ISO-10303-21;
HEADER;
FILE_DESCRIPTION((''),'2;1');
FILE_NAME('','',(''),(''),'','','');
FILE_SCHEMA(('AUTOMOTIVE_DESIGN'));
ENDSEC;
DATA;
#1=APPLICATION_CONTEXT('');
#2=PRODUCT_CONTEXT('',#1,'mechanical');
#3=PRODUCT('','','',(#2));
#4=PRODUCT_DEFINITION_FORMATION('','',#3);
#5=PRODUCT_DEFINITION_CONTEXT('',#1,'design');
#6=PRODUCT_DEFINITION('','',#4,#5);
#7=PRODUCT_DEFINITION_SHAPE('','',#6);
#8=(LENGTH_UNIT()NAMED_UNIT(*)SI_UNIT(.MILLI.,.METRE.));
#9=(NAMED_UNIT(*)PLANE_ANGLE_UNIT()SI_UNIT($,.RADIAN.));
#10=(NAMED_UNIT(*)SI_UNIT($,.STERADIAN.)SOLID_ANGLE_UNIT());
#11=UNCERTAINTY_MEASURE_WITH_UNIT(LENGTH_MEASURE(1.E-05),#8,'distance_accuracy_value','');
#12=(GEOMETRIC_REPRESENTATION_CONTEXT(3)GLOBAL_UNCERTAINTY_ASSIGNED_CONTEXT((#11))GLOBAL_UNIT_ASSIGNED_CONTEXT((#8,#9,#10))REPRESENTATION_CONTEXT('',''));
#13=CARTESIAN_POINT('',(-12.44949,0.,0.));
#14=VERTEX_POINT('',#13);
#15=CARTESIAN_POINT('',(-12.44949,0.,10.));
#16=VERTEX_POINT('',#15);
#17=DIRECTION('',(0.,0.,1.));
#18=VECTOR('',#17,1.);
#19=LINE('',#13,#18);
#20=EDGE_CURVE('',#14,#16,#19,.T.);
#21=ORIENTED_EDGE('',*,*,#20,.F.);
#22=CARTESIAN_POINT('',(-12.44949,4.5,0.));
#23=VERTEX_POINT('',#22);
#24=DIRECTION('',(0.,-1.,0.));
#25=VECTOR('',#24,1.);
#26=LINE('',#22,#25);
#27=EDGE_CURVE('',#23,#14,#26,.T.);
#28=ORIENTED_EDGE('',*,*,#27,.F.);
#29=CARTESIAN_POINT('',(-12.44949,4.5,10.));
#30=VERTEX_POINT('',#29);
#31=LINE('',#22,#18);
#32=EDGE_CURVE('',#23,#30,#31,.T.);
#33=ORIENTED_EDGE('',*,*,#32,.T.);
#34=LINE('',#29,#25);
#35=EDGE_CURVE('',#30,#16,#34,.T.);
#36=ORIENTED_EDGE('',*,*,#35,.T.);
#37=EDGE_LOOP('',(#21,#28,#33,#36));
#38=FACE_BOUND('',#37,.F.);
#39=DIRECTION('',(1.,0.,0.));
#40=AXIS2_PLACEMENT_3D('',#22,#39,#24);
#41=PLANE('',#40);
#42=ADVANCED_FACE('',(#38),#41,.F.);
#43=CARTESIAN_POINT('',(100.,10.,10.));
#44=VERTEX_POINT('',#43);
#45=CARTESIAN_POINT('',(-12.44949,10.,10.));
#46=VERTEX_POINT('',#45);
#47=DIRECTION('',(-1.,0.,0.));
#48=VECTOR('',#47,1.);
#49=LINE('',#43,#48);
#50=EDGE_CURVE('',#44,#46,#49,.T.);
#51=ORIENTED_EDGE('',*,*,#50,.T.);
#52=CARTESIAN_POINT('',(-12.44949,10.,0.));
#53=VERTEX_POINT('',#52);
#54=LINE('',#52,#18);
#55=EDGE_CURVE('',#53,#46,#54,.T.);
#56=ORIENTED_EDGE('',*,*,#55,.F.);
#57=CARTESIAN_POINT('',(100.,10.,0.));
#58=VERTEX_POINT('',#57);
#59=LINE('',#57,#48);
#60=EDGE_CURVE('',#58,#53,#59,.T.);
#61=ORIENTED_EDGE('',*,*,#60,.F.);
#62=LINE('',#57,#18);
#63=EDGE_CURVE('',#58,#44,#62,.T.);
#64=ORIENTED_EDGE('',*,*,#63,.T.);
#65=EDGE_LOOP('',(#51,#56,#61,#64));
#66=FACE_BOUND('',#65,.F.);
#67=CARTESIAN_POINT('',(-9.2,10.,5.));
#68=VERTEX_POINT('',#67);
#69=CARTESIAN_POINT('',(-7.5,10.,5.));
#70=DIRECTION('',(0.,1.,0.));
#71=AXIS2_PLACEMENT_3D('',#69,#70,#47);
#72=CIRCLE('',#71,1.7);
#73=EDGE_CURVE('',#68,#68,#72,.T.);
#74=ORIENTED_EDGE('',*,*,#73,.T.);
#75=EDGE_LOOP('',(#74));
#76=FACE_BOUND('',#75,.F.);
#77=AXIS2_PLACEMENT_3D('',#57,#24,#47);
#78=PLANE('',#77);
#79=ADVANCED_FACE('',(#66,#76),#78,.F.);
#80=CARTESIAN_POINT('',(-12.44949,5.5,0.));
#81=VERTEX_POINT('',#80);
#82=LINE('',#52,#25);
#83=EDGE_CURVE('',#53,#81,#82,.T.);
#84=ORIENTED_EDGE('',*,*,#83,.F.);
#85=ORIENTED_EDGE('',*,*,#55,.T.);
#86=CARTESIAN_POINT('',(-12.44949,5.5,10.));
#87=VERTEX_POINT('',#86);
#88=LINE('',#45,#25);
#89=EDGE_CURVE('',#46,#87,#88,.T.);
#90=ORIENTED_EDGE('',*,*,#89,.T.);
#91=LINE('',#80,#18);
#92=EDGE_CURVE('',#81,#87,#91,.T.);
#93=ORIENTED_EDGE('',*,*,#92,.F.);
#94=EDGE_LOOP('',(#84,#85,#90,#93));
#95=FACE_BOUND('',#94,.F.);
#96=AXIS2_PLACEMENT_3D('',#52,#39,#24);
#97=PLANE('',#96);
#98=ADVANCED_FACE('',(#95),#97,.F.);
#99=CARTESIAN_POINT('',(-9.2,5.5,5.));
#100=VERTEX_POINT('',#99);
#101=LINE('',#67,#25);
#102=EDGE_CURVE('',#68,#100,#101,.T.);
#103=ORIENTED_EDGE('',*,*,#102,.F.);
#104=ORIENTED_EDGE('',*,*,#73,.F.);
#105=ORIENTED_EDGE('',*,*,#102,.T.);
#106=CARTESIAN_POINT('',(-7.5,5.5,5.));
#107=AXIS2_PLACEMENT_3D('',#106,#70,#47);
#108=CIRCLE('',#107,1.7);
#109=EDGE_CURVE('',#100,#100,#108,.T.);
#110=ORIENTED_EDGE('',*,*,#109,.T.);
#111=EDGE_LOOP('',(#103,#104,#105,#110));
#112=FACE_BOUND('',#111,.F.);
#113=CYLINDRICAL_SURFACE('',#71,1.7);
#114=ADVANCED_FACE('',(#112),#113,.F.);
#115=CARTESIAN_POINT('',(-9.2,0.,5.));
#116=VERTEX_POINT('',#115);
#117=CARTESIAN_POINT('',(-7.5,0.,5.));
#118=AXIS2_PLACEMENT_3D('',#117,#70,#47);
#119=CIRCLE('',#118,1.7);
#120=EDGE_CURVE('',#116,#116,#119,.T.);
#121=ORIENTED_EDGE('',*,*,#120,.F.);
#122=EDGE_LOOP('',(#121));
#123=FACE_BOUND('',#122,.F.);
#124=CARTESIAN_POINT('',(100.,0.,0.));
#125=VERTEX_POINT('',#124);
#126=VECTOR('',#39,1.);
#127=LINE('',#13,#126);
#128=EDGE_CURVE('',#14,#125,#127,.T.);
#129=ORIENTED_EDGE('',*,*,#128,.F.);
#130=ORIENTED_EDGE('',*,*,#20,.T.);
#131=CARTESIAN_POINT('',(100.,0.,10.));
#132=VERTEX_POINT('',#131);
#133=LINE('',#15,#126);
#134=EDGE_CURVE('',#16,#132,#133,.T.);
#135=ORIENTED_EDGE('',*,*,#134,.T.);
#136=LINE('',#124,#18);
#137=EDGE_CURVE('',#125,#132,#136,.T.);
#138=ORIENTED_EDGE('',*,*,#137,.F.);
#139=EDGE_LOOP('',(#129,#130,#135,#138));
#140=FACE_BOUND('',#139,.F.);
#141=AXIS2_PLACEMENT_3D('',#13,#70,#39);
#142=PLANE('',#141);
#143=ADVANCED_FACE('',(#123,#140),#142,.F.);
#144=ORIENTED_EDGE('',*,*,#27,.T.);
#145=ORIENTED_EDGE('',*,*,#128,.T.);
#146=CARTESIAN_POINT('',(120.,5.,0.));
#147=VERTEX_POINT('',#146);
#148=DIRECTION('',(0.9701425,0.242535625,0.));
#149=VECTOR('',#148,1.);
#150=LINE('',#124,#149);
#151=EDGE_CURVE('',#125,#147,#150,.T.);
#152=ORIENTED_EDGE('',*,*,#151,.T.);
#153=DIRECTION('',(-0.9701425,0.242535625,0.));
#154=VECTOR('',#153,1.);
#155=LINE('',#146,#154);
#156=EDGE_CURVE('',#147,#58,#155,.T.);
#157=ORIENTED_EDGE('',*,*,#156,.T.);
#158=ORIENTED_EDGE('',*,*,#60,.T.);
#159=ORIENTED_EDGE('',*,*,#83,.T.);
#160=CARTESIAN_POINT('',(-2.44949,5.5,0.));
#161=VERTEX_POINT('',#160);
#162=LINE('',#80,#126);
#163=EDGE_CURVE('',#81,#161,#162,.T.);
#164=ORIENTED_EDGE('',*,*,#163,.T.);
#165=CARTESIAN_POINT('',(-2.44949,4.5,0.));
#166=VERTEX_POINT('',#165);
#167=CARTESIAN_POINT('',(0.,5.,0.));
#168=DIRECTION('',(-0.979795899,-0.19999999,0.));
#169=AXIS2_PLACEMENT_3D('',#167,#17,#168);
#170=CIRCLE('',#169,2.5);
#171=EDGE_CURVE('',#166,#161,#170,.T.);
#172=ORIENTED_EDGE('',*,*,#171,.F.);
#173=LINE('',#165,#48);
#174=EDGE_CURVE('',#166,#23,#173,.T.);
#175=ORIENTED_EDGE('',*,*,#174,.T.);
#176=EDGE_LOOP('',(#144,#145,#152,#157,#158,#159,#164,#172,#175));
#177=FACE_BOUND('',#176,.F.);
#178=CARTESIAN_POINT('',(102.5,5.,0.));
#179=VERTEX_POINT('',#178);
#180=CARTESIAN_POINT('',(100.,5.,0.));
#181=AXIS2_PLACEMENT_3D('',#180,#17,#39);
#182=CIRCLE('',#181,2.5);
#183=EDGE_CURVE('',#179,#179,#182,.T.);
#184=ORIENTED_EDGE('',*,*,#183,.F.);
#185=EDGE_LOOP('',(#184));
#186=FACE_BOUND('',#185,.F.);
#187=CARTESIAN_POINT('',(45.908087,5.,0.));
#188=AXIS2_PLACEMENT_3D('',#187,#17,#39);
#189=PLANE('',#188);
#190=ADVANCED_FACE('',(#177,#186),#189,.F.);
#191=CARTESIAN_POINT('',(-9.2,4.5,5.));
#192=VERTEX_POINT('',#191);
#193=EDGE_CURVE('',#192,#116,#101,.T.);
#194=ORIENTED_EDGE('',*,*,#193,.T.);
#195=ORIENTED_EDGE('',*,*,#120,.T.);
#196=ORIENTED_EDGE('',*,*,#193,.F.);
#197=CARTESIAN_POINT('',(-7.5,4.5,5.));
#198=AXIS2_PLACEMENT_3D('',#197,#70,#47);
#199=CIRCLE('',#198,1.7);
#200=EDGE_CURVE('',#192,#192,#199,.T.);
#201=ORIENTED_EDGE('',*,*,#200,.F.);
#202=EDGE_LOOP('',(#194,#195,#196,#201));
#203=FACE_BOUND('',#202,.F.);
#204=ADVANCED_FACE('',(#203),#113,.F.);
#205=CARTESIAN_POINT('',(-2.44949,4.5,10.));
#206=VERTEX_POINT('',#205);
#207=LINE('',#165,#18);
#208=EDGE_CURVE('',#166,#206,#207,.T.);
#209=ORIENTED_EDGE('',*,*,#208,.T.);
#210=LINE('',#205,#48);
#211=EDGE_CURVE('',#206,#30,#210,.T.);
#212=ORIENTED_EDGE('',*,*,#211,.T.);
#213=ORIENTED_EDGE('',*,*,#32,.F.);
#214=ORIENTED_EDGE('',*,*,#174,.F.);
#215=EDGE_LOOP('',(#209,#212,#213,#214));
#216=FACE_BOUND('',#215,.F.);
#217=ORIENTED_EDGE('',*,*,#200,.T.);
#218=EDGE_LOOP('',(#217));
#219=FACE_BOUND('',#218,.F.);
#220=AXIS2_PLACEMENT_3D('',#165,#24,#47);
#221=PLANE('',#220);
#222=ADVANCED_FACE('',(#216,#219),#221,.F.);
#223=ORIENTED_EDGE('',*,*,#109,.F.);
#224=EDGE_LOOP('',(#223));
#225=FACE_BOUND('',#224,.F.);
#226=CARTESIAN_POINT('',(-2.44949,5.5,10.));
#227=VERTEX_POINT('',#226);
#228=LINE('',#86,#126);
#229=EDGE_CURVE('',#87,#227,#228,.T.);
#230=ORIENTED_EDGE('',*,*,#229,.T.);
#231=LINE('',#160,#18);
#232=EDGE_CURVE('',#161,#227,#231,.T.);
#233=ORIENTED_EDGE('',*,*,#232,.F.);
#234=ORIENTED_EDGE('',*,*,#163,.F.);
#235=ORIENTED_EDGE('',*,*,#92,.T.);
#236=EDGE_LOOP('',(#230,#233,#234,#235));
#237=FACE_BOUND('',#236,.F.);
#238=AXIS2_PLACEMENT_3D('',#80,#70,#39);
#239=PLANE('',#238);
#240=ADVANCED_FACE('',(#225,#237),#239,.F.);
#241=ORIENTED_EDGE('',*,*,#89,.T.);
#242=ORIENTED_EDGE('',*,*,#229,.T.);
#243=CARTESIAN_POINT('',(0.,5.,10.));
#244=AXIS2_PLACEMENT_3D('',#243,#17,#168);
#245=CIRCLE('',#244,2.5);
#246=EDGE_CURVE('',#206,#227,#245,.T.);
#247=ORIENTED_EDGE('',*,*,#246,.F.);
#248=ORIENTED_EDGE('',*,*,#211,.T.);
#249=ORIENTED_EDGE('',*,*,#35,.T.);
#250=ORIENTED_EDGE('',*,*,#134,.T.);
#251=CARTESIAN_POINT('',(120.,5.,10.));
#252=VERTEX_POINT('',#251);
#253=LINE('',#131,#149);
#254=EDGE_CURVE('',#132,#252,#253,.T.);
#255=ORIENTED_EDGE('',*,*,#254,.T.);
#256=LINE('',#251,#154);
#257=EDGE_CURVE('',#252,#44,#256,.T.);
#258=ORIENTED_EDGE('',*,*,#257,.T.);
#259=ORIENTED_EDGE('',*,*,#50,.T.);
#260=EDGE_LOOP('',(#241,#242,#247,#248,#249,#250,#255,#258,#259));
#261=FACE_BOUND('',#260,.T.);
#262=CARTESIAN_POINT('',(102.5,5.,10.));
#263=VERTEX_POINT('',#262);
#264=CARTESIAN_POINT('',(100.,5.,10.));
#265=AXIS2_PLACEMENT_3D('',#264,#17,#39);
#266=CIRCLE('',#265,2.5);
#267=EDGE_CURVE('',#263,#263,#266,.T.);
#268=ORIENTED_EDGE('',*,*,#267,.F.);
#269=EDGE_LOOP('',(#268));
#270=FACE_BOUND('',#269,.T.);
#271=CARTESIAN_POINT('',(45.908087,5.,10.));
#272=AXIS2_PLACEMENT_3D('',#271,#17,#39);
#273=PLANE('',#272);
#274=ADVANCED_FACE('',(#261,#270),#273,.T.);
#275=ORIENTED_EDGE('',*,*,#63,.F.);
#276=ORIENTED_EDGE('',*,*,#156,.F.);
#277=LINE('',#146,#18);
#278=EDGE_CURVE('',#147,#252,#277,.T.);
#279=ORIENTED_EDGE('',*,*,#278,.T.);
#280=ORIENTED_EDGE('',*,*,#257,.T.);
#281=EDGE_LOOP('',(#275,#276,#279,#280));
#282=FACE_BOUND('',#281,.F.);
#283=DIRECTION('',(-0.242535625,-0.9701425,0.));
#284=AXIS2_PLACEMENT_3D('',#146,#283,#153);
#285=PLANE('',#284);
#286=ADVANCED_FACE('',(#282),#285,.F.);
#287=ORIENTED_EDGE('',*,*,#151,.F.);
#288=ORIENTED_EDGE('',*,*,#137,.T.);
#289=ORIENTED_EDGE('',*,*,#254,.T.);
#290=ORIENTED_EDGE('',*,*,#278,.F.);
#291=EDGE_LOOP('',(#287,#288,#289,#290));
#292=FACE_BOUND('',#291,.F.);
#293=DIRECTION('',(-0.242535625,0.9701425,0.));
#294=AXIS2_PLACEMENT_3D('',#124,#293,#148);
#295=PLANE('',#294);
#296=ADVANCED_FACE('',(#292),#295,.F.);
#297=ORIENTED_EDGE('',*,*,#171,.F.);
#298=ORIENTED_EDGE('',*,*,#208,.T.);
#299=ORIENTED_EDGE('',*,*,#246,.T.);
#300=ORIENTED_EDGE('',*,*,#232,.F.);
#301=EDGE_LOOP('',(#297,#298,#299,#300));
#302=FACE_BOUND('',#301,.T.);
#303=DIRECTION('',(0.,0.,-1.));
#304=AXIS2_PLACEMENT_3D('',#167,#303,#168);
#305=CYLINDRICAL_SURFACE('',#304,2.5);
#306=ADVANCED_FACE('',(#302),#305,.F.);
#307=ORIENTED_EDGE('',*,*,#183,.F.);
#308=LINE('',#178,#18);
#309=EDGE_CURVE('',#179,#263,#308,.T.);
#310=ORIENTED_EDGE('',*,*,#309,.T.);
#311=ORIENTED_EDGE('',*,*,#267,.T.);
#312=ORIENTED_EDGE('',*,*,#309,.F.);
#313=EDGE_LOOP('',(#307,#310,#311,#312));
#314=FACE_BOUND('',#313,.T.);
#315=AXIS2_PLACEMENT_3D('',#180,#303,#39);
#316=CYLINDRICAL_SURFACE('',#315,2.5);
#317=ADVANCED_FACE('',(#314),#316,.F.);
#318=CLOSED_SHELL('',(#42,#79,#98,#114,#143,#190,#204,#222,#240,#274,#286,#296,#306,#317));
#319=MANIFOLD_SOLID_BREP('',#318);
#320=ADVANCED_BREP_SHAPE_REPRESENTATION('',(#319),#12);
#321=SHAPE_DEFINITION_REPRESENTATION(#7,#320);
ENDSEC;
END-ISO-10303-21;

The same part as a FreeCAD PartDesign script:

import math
import FreeCAD as App
import Part
import Sketcher

V = App.Vector

doc = App.newDocument("Part")
body = doc.addObject("PartDesign::Body", "Body")

# Sketch on XY plane
sketch1 = body.newObject("Sketcher::SketchObject", "Sketch")
sketch1.AttachmentSupport = (doc.getObject("XY_Plane"), [""])
sketch1.MapMode = "FlatFace"
sketch1.addGeometry([
    Part.LineSegment(V(100, 0, 0), V(120, 5, 0)),  # 0
    Part.LineSegment(V(120, 5, 0), V(100, 10, 0)),  # 1
    Part.LineSegment(V(100, 10, 0), V(-12.44949, 10, 0)),  # 2
    Part.LineSegment(V(-12.44949, 10, 0), V(-12.44949, 5.5, 0)),  # 3
    Part.LineSegment(V(-12.44949, 5.5, 0), V(-2.44949, 5.5, 0)),  # 4
    Part.ArcOfCircle(Part.Circle(V(0, 5, 0), V(0, 0, 1), 2.5), math.radians(-168.463042), math.radians(168.463042)),  # 5
    Part.LineSegment(V(-2.44949, 4.5, 0), V(-12.44949, 4.5, 0)),  # 6
    Part.LineSegment(V(-12.44949, 4.5, 0), V(-12.44949, 0, 0)),  # 7
    Part.LineSegment(V(-12.44949, 0, 0), V(100, 0, 0)),  # 8
    Part.Circle(V(100, 5, 0), V(0, 0, 1), 2.5),  # 9
], False)
sketch1.addConstraint([
    Sketcher.Constraint("Coincident", 0, 2, 1, 1),
    Sketcher.Constraint("Coincident", 1, 2, 2, 1),
    Sketcher.Constraint("Coincident", 2, 2, 3, 1),
    Sketcher.Constraint("Coincident", 3, 2, 4, 1),
    Sketcher.Constraint("Coincident", 4, 2, 5, 2),
    Sketcher.Constraint("Coincident", 5, 1, 6, 1),
    Sketcher.Constraint("Coincident", 6, 2, 7, 1),
    Sketcher.Constraint("Coincident", 7, 2, 8, 1),
    Sketcher.Constraint("Coincident", 8, 2, 0, 1),
    Sketcher.Constraint("Horizontal", 2),
    Sketcher.Constraint("Vertical", 3),
    Sketcher.Constraint("Horizontal", 4),
    Sketcher.Constraint("Horizontal", 6),
    Sketcher.Constraint("Vertical", 7),
    Sketcher.Constraint("Horizontal", 8),
    Sketcher.Constraint("Equal", 5, 9),
    Sketcher.Constraint("PointOnObject", 5, 3, -2),
    Sketcher.Constraint("PointOnObject", 7, 2, -1),
    Sketcher.Constraint("Horizontal", 5, 3, 9, 3),
    Sketcher.Constraint("Horizontal", 9, 3, 0, 2),
    Sketcher.Constraint("Vertical", 9, 3, 1, 2),
    Sketcher.Constraint("Vertical", 4, 2, 5, 1),
    Sketcher.Constraint("Vertical", 3, 2, 6, 2),
    Sketcher.Constraint("Vertical", 1, 2, 8, 2),
    Sketcher.Constraint("Equal", 3, 7),
    Sketcher.Constraint("Diameter", 9, 5.0),
    Sketcher.Constraint("DistanceX", 4, 1, 4, 2, 10.0),
    Sketcher.Constraint("DistanceY", 3, 2, 3, 1, 4.5),
    Sketcher.Constraint("DistanceY", -1, 1, 5, 3, 5.0),
    Sketcher.Constraint("DistanceX", -1, 1, 9, 3, 100.0),
    Sketcher.Constraint("DistanceX", -1, 1, 0, 2, 120.0),
])
pad1 = body.newObject("PartDesign::Pad", "Pad")
pad1.Profile = sketch1
pad1.Length = 10

# Sketch on XZ plane
sketch2 = body.newObject("Sketcher::SketchObject", "Sketch001")
sketch2.AttachmentSupport = (doc.getObject("XZ_Plane"), [""])
sketch2.MapMode = "FlatFace"
sketch2.AttachmentOffset = App.Placement(V(0, 0, -10), App.Rotation())
sketch2.addGeometry(Part.Circle(V(-7.5, 5, 0), V(0, 0, 1), 1.7), False)
sketch2.addConstraint([
    Sketcher.Constraint("Diameter", 0, 3.4),
    Sketcher.Constraint("DistanceY", -1, 1, 0, 3, 5.0),
    Sketcher.Constraint("DistanceX", 0, 3, -1, 1, 7.5),
])
pocket1 = body.newObject("PartDesign::Pocket", "Pocket")
pocket1.Profile = sketch2
pocket1.Length = 12
pocket1.Reversed = True

doc.recompute()
